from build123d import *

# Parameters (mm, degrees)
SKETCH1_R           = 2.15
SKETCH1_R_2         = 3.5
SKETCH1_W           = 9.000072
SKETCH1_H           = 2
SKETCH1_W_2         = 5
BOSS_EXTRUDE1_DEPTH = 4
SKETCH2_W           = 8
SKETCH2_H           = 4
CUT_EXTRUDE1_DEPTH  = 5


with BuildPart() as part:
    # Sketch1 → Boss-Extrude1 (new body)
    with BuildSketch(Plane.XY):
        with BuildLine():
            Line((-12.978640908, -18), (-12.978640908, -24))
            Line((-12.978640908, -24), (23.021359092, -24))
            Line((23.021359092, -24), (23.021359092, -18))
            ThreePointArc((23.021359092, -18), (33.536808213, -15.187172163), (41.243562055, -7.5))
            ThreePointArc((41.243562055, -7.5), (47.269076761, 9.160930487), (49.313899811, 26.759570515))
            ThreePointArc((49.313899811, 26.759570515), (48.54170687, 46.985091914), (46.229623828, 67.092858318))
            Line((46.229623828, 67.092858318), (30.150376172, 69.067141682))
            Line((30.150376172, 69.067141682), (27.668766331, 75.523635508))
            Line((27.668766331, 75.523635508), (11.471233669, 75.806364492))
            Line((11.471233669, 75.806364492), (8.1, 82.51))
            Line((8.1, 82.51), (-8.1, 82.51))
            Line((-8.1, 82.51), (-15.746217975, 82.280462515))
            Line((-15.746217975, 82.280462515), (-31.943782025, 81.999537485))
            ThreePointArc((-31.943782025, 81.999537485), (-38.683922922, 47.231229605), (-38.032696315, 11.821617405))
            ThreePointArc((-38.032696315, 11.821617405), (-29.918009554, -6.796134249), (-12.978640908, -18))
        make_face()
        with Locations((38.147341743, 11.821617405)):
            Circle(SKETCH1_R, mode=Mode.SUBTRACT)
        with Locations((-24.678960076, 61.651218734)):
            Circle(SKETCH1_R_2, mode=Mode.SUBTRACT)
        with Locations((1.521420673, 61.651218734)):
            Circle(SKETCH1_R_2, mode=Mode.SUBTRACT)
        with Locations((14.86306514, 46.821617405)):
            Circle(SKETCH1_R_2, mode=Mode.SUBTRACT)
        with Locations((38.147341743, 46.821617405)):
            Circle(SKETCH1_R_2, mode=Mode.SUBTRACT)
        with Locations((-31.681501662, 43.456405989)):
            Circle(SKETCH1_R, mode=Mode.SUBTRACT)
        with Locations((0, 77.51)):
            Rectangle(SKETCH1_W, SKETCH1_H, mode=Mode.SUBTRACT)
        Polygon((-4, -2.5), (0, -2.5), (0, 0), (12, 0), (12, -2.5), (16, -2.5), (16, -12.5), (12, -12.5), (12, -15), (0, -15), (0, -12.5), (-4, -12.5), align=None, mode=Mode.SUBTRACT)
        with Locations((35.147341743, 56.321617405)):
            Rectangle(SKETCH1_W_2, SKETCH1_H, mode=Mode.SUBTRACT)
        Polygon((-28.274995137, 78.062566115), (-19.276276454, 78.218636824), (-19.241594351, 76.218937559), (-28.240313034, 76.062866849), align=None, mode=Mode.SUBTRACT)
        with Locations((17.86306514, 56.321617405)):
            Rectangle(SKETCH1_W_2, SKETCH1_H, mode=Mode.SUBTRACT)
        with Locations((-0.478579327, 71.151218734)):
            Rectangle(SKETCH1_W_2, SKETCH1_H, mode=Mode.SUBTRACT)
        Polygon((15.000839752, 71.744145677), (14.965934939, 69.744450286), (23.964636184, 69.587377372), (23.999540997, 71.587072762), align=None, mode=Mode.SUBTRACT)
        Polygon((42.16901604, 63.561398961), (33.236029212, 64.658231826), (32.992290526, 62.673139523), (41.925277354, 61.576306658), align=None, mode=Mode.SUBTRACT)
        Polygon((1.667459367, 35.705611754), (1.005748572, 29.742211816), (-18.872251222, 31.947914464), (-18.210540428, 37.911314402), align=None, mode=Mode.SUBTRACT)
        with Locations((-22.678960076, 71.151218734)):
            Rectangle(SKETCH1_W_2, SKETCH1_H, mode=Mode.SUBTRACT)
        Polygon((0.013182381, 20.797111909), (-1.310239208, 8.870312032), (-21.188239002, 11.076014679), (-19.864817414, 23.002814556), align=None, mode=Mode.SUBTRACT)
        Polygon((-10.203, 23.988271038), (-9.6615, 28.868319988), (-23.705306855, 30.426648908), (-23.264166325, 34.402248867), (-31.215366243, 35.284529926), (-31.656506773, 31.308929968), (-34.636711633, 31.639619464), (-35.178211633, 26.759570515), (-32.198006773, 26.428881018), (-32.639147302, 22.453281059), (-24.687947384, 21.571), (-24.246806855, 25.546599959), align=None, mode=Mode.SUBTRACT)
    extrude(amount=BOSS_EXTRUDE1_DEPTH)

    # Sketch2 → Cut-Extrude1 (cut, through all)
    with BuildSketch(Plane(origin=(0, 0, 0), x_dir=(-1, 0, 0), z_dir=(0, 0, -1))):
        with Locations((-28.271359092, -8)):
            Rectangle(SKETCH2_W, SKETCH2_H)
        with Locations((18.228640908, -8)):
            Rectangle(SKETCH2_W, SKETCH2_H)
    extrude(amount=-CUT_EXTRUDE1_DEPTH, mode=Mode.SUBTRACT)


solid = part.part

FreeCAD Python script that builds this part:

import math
import FreeCAD as App
import Part
import Sketcher

V = App.Vector
Q = App.Units.Quantity

doc = App.newDocument("Part")
body = doc.addObject("PartDesign::Body", "Body")

sketch1 = body.newObject("Sketcher::SketchObject", "Sketch")
sketch1.AttachmentSupport = (doc.getObject("XY_Plane"), [""])
sketch1.MapMode = "FlatFace"
sketch1.addGeometry([
    Part.LineSegment(V(-13, -18, 0), V(-13, -24, 0)),
    Part.LineSegment(V(-13, -24, 0), V(23, -24, 0)),
    Part.LineSegment(V(23, -24, 0), V(23, -18, 0)),
    Part.ArcOfCircle(Part.Circle(V(23, 3.1, 0), V(0, 0, 1), 21.1), math.radians(-90), math.radians(-30)),
    Part.ArcOfCircle(Part.Circle(V(-27.4, 26.8, 0), V(0, 0, 1), 76.8), math.radians(-27), math.radians(0)),
    Part.ArcOfCircle(Part.Circle(V(-215.9, 26.8, 0), V(0, 0, 1), 265.3), math.radians(0), math.radians(8.75)),
    Part.LineSegment(V(46.2, 67.1, 0), V(30.2, 69.1, 0)),
    Part.LineSegment(V(30.2, 69.1, 0), V(27.7, 75.5, 0)),
    Part.LineSegment(V(27.7, 75.5, 0), V(11.5, 75.8, 0)),
    Part.LineSegment(V(11.5, 75.8, 0), V(8.1, 82.5, 0)),
    Part.LineSegment(V(8.1, 82.5, 0), V(-8.1, 82.5, 0)),
    Part.LineSegment(V(-8.1, 82.5, 0), V(-15.7, 82.3, 0)),
    Part.LineSegment(V(-15.7, 82.3, 0), V(-31.9, 82, 0)),
    Part.ArcOfCircle(Part.Circle(V(129.7, 32.6, 0), V(0, 0, 1), 169.1), math.radians(163), math.radians(187)),
    Part.ArcOfCircle(Part.Circle(V(-2.5, 16.2, 0), V(0, 0, 1), 35.8), math.radians(-173), math.radians(-107)),
    Part.LineSegment(V(-9.7, 28.9, 0), V(-10.2, 24, 0)),
    Part.LineSegment(V(-10.2, 24, 0), V(-24.2, 25.5, 0)),
    Part.LineSegment(V(-24.2, 25.5, 0), V(-24.7, 21.6, 0)),
    Part.LineSegment(V(-24.7, 21.6, 0), V(-32.6, 22.5, 0)),
    Part.LineSegment(V(-32.6, 22.5, 0), V(-32.2, 26.4, 0)),
    Part.LineSegment(V(-32.2, 26.4, 0), V(-35.2, 26.8, 0)),
    Part.LineSegment(V(-35.2, 26.8, 0), V(-34.6, 31.6, 0)),
    Part.LineSegment(V(-34.6, 31.6, 0), V(-31.7, 31.3, 0)),
    Part.LineSegment(V(-31.7, 31.3, 0), V(-31.2, 35.3, 0)),
    Part.LineSegment(V(-31.2, 35.3, 0), V(-23.3, 34.4, 0)),
    Part.LineSegment(V(-23.3, 34.4, 0), V(-23.7, 30.4, 0)),
    Part.LineSegment(V(-23.7, 30.4, 0), V(-9.7, 28.9, 0)),
    Part.LineSegment(V(-19.9, 23, 0), V(0, 20.8, 0)),
    Part.LineSegment(V(0, 20.8, 0), V(-1.3, 8.9, 0)),
    Part.LineSegment(V(-1.3, 8.9, 0), V(-21.2, 11.1, 0)),
    Part.LineSegment(V(-21.2, 11.1, 0), V(-19.9, 23, 0)),
    Part.LineSegment(V(-4, -12.5, 0), V(-4, -2.5, 0)),
    Part.LineSegment(V(-4, -2.5, 0), V(0, -2.5, 0)),
    Part.LineSegment(V(0, -2.5, 0), V(0, 0, 0)),
    Part.LineSegment(V(0, 0, 0), V(12, 0, 0)),
    Part.LineSegment(V(12, 0, 0), V(12, -2.5, 0)),
    Part.LineSegment(V(12, -2.5, 0), V(16, -2.5, 0)),
    Part.LineSegment(V(16, -2.5, 0), V(16, -12.5, 0)),
    Part.LineSegment(V(16, -12.5, 0), V(12, -12.5, 0)),
    Part.LineSegment(V(12, -12.5, 0), V(12, -15, 0)),
    Part.LineSegment(V(12, -15, 0), V(0, -15, 0)),
    Part.LineSegment(V(0, -15, 0), V(0, -12.5, 0)),
    Part.LineSegment(V(0, -12.5, 0), V(-4, -12.5, 0)),
    Part.Circle(V(38.1, 11.8, 0), V(0, 0, 1), 2.1),
    Part.Circle(V(-31.7, 43.5, 0), V(0, 0, 1), 2.1),
    Part.LineSegment(V(-18.2, 37.9, 0), V(1.7, 35.7, 0)),
    Part.LineSegment(V(1.7, 35.7, 0), V(1, 29.7, 0)),
    Part.LineSegment(V(1, 29.7, 0), V(-18.9, 31.9, 0)),
    Part.LineSegment(V(-18.9, 31.9, 0), V(-18.2, 37.9, 0)),
    Part.Circle(V(-24.7, 61.7, 0), V(0, 0, 1), 3.5),
    Part.LineSegment(V(-20.2, 70.2, 0), V(-25.2, 70.2, 0)),
    Part.LineSegment(V(-25.2, 70.2, 0), V(-25.2, 72.2, 0)),
    Part.LineSegment(V(-25.2, 72.2, 0), V(-20.2, 72.2, 0)),
    Part.LineSegment(V(-20.2, 72.2, 0), V(-20.2, 70.2, 0)),
    Part.LineSegment(V(-28.2, 76.1, 0), V(-28.3, 78.1, 0)),
    Part.LineSegment(V(-28.3, 78.1, 0), V(-19.3, 78.2, 0)),
    Part.LineSegment(V(-19.3, 78.2, 0), V(-19.2, 76.2, 0)),
    Part.LineSegment(V(-19.2, 76.2, 0), V(-28.2, 76.1, 0)),
    Part.Circle(V(1.5, 61.7, 0), V(0, 0, 1), 3.5),
    Part.LineSegment(V(2, 70.2, 0), V(-3, 70.2, 0)),
    Part.LineSegment(V(-3, 70.2, 0), V(-3, 72.2, 0)),
    Part.LineSegment(V(-3, 72.2, 0), V(2, 72.2, 0)),
    Part.LineSegment(V(2, 72.2, 0), V(2, 70.2, 0)),
    Part.LineSegment(V(4.5, 76.5, 0), V(-4.5, 76.5, 0)),
    Part.LineSegment(V(-4.5, 76.5, 0), V(-4.5, 78.5, 0)),
    Part.LineSegment(V(-4.5, 78.5, 0), V(4.5, 78.5, 0)),
    Part.LineSegment(V(4.5, 78.5, 0), V(4.5, 76.5, 0)),
    Part.Circle(V(14.9, 46.8, 0), V(0, 0, 1), 3.5),
    Part.Circle(V(38.1, 46.8, 0), V(0, 0, 1), 3.5),
    Part.LineSegment(V(20.4, 55.3, 0), V(15.4, 55.3, 0)),
    Part.LineSegment(V(15.4, 55.3, 0), V(15.4, 57.3, 0)),
    Part.LineSegment(V(15.4, 57.3, 0), V(20.4, 57.3, 0)),
    Part.LineSegment(V(20.4, 57.3, 0), V(20.4, 55.3, 0)),
    Part.LineSegment(V(15, 69.7, 0), V(15, 71.7, 0)),
    Part.LineSegment(V(15, 71.7, 0), V(24, 71.6, 0)),
    Part.LineSegment(V(24, 71.6, 0), V(24, 69.6, 0)),
    Part.LineSegment(V(24, 69.6, 0), V(15, 69.7, 0)),
    Part.LineSegment(V(37.6, 55.3, 0), V(32.6, 55.3, 0)),
    Part.LineSegment(V(32.6, 55.3, 0), V(32.6, 57.3, 0)),
    Part.LineSegment(V(32.6, 57.3, 0), V(37.6, 57.3, 0)),
    Part.LineSegment(V(37.6, 57.3, 0), V(37.6, 55.3, 0)),
    Part.LineSegment(V(33.2, 64.7, 0), V(42.2, 63.6, 0)),
    Part.LineSegment(V(42.2, 63.6, 0), V(41.9, 61.6, 0)),
    Part.LineSegment(V(41.9, 61.6, 0), V(33, 62.7, 0)),
    Part.LineSegment(V(33, 62.7, 0), V(33.2, 64.7, 0)),
], False)
sketch1.addConstraint([
    Sketcher.Constraint("Coincident", 0, 2, 1, 1),
    Sketcher.Constraint("Coincident", 1, 2, 2, 1),
    Sketcher.Constraint("Coincident", 2, 2, 3, 1),
    Sketcher.Constraint("Coincident", 3, 2, 4, 1),
    Sketcher.Constraint("Tangent", 4, 2, 5, 1),
    Sketcher.Constraint("Coincident", 5, 2, 6, 1),
    Sketcher.Constraint("Coincident", 6, 2, 7, 1),
    Sketcher.Constraint("Coincident", 7, 2, 8, 1),
    Sketcher.Constraint("Coincident", 8, 2, 9, 1),
    Sketcher.Constraint("Coincident", 9, 2, 10, 1),
    Sketcher.Constraint("Coincident", 10, 2, 11, 1),
    Sketcher.Constraint("Coincident", 11, 2, 12, 1),
    Sketcher.Constraint("Coincident", 12, 2, 13, 1),
    Sketcher.Constraint("Tangent", 13, 2, 14, 1),
    Sketcher.Constraint("Coincident", 14, 2, 0, 1),
    Sketcher.Constraint("Coincident", 15, 2, 16, 1),
    Sketcher.Constraint("Coincident", 16, 2, 17, 1),
    Sketcher.Constraint("Coincident", 17, 2, 18, 1),
    Sketcher.Constraint("Coincident", 18, 2, 19, 1),
    Sketcher.Constraint("Coincident", 19, 2, 20, 1),
    Sketcher.Constraint("Coincident", 20, 2, 21, 1),
    Sketcher.Constraint("Coincident", 21, 2, 22, 1),
    Sketcher.Constraint("Coincident", 22, 2, 23, 1),
    Sketcher.Constraint("Coincident", 23, 2, 24, 1),
    Sketcher.Constraint("Coincident", 24, 2, 25, 1),
    Sketcher.Constraint("Coincident", 25, 2, 26, 1),
    Sketcher.Constraint("Coincident", 26, 2, 15, 1),
    Sketcher.Constraint("Coincident", 27, 2, 28, 1),
    Sketcher.Constraint("Coincident", 28, 2, 29, 1),
    Sketcher.Constraint("Coincident", 29, 2, 30, 1),
    Sketcher.Constraint("Coincident", 30, 2, 27, 1),
    Sketcher.Constraint("Coincident", 31, 2, 32, 1),
    Sketcher.Constraint("Coincident", 32, 2, 33, 1),
    Sketcher.Constraint("Coincident", 33, 2, 34, 1),
    Sketcher.Constraint("Coincident", 34, 2, 35, 1),
    Sketcher.Constraint("Coincident", 35, 2, 36, 1),
    Sketcher.Constraint("Coincident", 36, 2, 37, 1),
    Sketcher.Constraint("Coincident", 37, 2, 38, 1),
    Sketcher.Constraint("Coincident", 38, 2, 39, 1),
    Sketcher.Constraint("Coincident", 39, 2, 40, 1),
    Sketcher.Constraint("Coincident", 40, 2, 41, 1),
    Sketcher.Constraint("Coincident", 41, 2, 42, 1),
    Sketcher.Constraint("Coincident", 42, 2, 31, 1),
    Sketcher.Constraint("Coincident", 45, 2, 46, 1),
    Sketcher.Constraint("Coincident", 46, 2, 47, 1),
    Sketcher.Constraint("Coincident", 47, 2, 48, 1),
    Sketcher.Constraint("Coincident", 48, 2, 45, 1),
    Sketcher.Constraint("Coincident", 50, 2, 51, 1),
    Sketcher.Constraint("Coincident", 51, 2, 52, 1),
    Sketcher.Constraint("Coincident", 52, 2, 53, 1),
    Sketcher.Constraint("Coincident", 53, 2, 50, 1),
    Sketcher.Constraint("Coincident", 54, 2, 55, 1),
    Sketcher.Constraint("Coincident", 55, 2, 56, 1),
    Sketcher.Constraint("Coincident", 56, 2, 57, 1),
    Sketcher.Constraint("Coincident", 57, 2, 54, 1),
    Sketcher.Constraint("Coincident", 59, 2, 60, 1),
    Sketcher.Constraint("Coincident", 60, 2, 61, 1),
    Sketcher.Constraint("Coincident", 61, 2, 62, 1),
    Sketcher.Constraint("Coincident", 62, 2, 59, 1),
    Sketcher.Constraint("Coincident", 63, 2, 64, 1),
    Sketcher.Constraint("Coincident", 64, 2, 65, 1),
    Sketcher.Constraint("Coincident", 65, 2, 66, 1),
    Sketcher.Constraint("Coincident", 66, 2, 63, 1),
    Sketcher.Constraint("Coincident", 69, 2, 70, 1),
    Sketcher.Constraint("Coincident", 70, 2, 71, 1),
    Sketcher.Constraint("Coincident", 71, 2, 72, 1),
    Sketcher.Constraint("Coincident", 72, 2, 69, 1),
    Sketcher.Constraint("Coincident", 73, 2, 74, 1),
    Sketcher.Constraint("Coincident", 74, 2, 75, 1),
    Sketcher.Constraint("Coincident", 75, 2, 76, 1),
    Sketcher.Constraint("Coincident", 76, 2, 73, 1),
    Sketcher.Constraint("Coincident", 77, 2, 78, 1),
    Sketcher.Constraint("Coincident", 78, 2, 79, 1),
    Sketcher.Constraint("Coincident", 79, 2, 80, 1),
    Sketcher.Constraint("Coincident", 80, 2, 77, 1),
    Sketcher.Constraint("Coincident", 81, 2, 82, 1),
    Sketcher.Constraint("Coincident", 82, 2, 83, 1),
    Sketcher.Constraint("Coincident", 83, 2, 84, 1),
    Sketcher.Constraint("Coincident", 84, 2, 81, 1),
    Sketcher.Constraint("Vertical", 0),
    Sketcher.Constraint("Horizontal", 1),
    Sketcher.Constraint("Vertical", 2),
    Sketcher.Constraint("Horizontal", 10),
    Sketcher.Constraint("Vertical", 31),
    Sketcher.Constraint("Horizontal", 32),
    Sketcher.Constraint("Vertical", 33),
    Sketcher.Constraint("Horizontal", 34),
    Sketcher.Constraint("Vertical", 35),
    Sketcher.Constraint("Horizontal", 36),
    Sketcher.Constraint("Vertical", 37),
    Sketcher.Constraint("Horizontal", 38),
    Sketcher.Constraint("Vertical", 39),
    Sketcher.Constraint("Horizontal", 40),
    Sketcher.Constraint("Vertical", 41),
    Sketcher.Constraint("Horizontal", 42),
    Sketcher.Constraint("Horizontal", 50),
    Sketcher.Constraint("Vertical", 51),
    Sketcher.Constraint("Horizontal", 52),
    Sketcher.Constraint("Vertical", 53),
    Sketcher.Constraint("Horizontal", 59),
    Sketcher.Constraint("Vertical", 60),
    Sketcher.Constraint("Horizontal", 61),
    Sketcher.Constraint("Vertical", 62),
    Sketcher.Constraint("Horizontal", 63),
    Sketcher.Constraint("Vertical", 64),
    Sketcher.Constraint("Horizontal", 65),
    Sketcher.Constraint("Vertical", 66),
    Sketcher.Constraint("Horizontal", 69),
    Sketcher.Constraint("Vertical", 70),
    Sketcher.Constraint("Horizontal", 71),
    Sketcher.Constraint("Vertical", 72),
    Sketcher.Constraint("Horizontal", 77),
    Sketcher.Constraint("Vertical", 78),
    Sketcher.Constraint("Horizontal", 79),
    Sketcher.Constraint("Vertical", 80),
    Sketcher.Constraint("Coincident", 33, 2, -1, 1),
    Sketcher.Constraint("Equal", 43, 44),
    Sketcher.Constraint("Equal", 49, 58),
    Sketcher.Constraint("Equal", 58, 67),
    Sketcher.Constraint("Equal", 67, 68),
    Sketcher.Constraint("PointOnObject", 40, 2, -2),
    Sketcher.Constraint("Perpendicular", 15, 16),
    Sketcher.Constraint("Perpendicular", 16, 17),
    Sketcher.Constraint("Perpendicular", 17, 18),
    Sketcher.Constraint("Perpendicular", 18, 19),
    Sketcher.Constraint("Perpendicular", 19, 20),
    Sketcher.Constraint("Perpendicular", 20, 21),
    Sketcher.Constraint("Perpendicular", 21, 22),
    Sketcher.Constraint("Perpendicular", 22, 23),
    Sketcher.Constraint("Perpendicular", 23, 24),
    Sketcher.Constraint("Perpendicular", 24, 25),
    Sketcher.Constraint("Perpendicular", 25, 26),
    Sketcher.Constraint("Parallel", 26, 27),
    Sketcher.Constraint("Perpendicular", 27, 28),
    Sketcher.Constraint("Perpendicular", 28, 29),
    Sketcher.Constraint("Perpendicular", 29, 30),
    Sketcher.Constraint("Perpendicular", 30, 45),
    Sketcher.Constraint("Perpendicular", 45, 46),
    Sketcher.Constraint("Perpendicular", 46, 47),
    Sketcher.Constraint("Perpendicular", 47, 48),
    Sketcher.Constraint("Perpendicular", 12, 54),
    Sketcher.Constraint("Perpendicular", 54, 55),
    Sketcher.Constraint("Perpendicular", 55, 56),
    Sketcher.Constraint("Perpendicular", 56, 57),
    Sketcher.Constraint("Perpendicular", 8, 73),
    Sketcher.Constraint("Perpendicular", 73, 74),
    Sketcher.Constraint("Perpendicular", 74, 75),
    Sketcher.Constraint("Perpendicular", 75, 76),
    Sketcher.Constraint("Parallel", 6, 81),
    Sketcher.Constraint("Perpendicular", 81, 82),
    Sketcher.Constraint("Perpendicular", 82, 83),
    Sketcher.Constraint("Perpendicular", 83, 84),
    Sketcher.Constraint("Horizontal", 4, 3, 5, 3),
    Sketcher.Constraint("Horizontal", 49, 3, 58, 3),
    Sketcher.Constraint("Horizontal", 67, 3, 68, 3),
    Sketcher.Constraint("Horizontal", 43, 3, 13, 2),
    Sketcher.Constraint("Horizontal", 2, 2, 14, 2),
    Sketcher.Constraint("Horizontal", 4, 2, 20, 2),
    Sketcher.Constraint("Horizontal", 32, 2, 35, 2),
    Sketcher.Constraint("Horizontal", 38, 2, 41, 2),
    Sketcher.Constraint("Horizontal", 53, 2, 59, 2),
    Sketcher.Constraint("Horizontal", 52, 2, 60, 2),
    Sketcher.Constraint("Horizontal", 72, 2, 77, 2),
    Sketcher.Constraint("Horizontal", 71, 2, 78, 2),
    Sketcher.Constraint("Vertical", 43, 3, 68, 3),
    Sketcher.Constraint("Vertical", 3, 3, 1, 2),
    Sketcher.Constraint("Vertical", 35, 2, 38, 2),
    Sketcher.Constraint("Equal", 32, 36),
    Sketcher.Constraint("Equal", 52, 59),
    Sketcher.Constraint("Equal", 61, 69),
    Sketcher.Constraint("Equal", 71, 77),
    Sketcher.Constraint("Equal", 35, 39),
    Sketcher.Constraint("Equal", 62, 64),
    Sketcher.Constraint("Equal", 66, 70),
    Sketcher.Constraint("Equal", 6, 8),
    Sketcher.Constraint("Equal", 8, 12),
    Sketcher.Constraint("Equal", 17, 19),
    Sketcher.Constraint("Equal", 15, 21),
    Sketcher.Constraint("Equal", 20, 22),
    Sketcher.Constraint("Equal", 19, 23),
    Sketcher.Constraint("Equal", 18, 24),
    Sketcher.Constraint("Equal", 29, 45),
    Sketcher.Constraint("Equal", 56, 73),
    Sketcher.Constraint("Equal", 57, 74),
    Sketcher.Constraint("Equal", 76, 81),
    Sketcher.Constraint("Equal", 75, 82),
    Sketcher.Constraint("Diameter", 49, Q("7 mm")),
    Sketcher.Constraint("Diameter", 43, Q("4.3 mm")),
    Sketcher.Constraint("DistanceX", 1, 1, 1, 2, Q("36 mm")),
    Sketcher.Constraint("DistanceX", 32, 1, 32, 2, Q("4 mm")),
    Sketcher.Constraint("DistanceX", 34, 1, 34, 2, Q("12 mm")),
    Sketcher.Constraint("DistanceX", 50, 2, 50, 1, Q("5 mm")),
    Sketcher.Constraint("DistanceY", 0, 2, 0, 1, Q("6 mm")),
    Sketcher.Constraint("DistanceY", 31, 1, 31, 2, Q("10 mm")),
    Sketcher.Constraint("DistanceY", 51, 1, 51, 2, Q("2 mm")),
    Sketcher.Constraint("Angle", 6, Q("173 deg")),
    Sketcher.Constraint("Angle", 8, Q("179 deg")),
    Sketcher.Constraint("Distance", 17, Q("4 mm")),
    Sketcher.Constraint("Distance", 18, Q("8 mm")),
    Sketcher.Constraint("Distance", 27, Q("20 mm")),
    Sketcher.Constraint("Distance", 28, Q("12 mm")),
    Sketcher.Constraint("Distance", 46, Q("6 mm")),
    Sketcher.Constraint("Distance", 54, Q("2 mm")),
    Sketcher.Constraint("DistanceX", 10, 2, 10, 1, Q("16.2 mm")),
    Sketcher.Constraint("DistanceY", 33, 1, 33, 2, Q("2.5 mm")),
    Sketcher.Constraint("DistanceY", 0, 2, -1, 1, Q("24 mm")),
    Sketcher.Constraint("Distance", 6, Q("16.2 mm")),
    Sketcher.Constraint("DistanceY", 3, 2, -1, 1, Q("7.5 mm")),
    Sketcher.Constraint("DistanceX", -1, 1, 9, 2, Q("8.1 mm")),
    Sketcher.Constraint("Radius", 4, Q("76.753202 mm")),
    Sketcher.Constraint("Distance", 15, Q("4.91 mm")),
    Sketcher.Constraint("Distance", 16, Q("14.13 mm")),
    Sketcher.Constraint("DistanceY", -1, 1, 9, 2, Q("82.51 mm")),
    Sketcher.Constraint("DistanceY", -1, 1, 63, 2, Q("76.51 mm")),
    Sketcher.Constraint("Radius", 3, Q("21.061842 mm")),
    Sketcher.Constraint("Radius", 5, Q("265.262718 mm")),
    Sketcher.Constraint("Radius", 13, Q("169.05805 mm")),
    Sketcher.Constraint("Radius", 14, Q("35.787019 mm")),
    Sketcher.Constraint("DistanceX", 15, 2, -1, 1, Q("10.203 mm")),
    Sketcher.Constraint("DistanceY", -1, 1, 17, 2, Q("21.571 mm")),
    Sketcher.Constraint("DistanceX", 4, 3, -1, 1, Q("27.439302 mm")),
    Sketcher.Constraint("DistanceX", 44, 3, -1, 1, Q("31.681502 mm")),
    Sketcher.Constraint("DistanceY", -1, 1, 16, 2, Q("25.5466 mm")),
    Sketcher.Constraint("DistanceY", -1, 1, 81, 2, Q("63.561399 mm")),
    Sketcher.Constraint("Distance", 55, Q("9.000072 mm")),
    Sketcher.Constraint("DistanceX", 63, 2, 63, 1, Q("9.000072 mm")),
    Sketcher.Constraint("DistanceX", -1, 1, 3, 3, Q("23.021359 mm")),
    Sketcher.Constraint("DistanceX", 14, 3, -1, 1, Q("2.517479 mm")),
    Sketcher.Constraint("DistanceX", -1, 1, 43, 3, Q("38.147342 mm")),
    Sketcher.Constraint("DistanceX", 49, 3, -1, 1, Q("24.67896 mm")),
    Sketcher.Constraint("DistanceY", -1, 1, 49, 3, Q("61.651219 mm")),
    Sketcher.Constraint("DistanceX", -1, 1, 58, 3, Q("1.521421 mm")),
    Sketcher.Constraint("DistanceY", -1, 1, 5, 2, Q("67.092858 mm")),
    Sketcher.Constraint("DistanceY", -1, 1, 27, 2, Q("20.797112 mm")),
    Sketcher.Constraint("DistanceX", 28, 2, -1, 1, Q("1.310239 mm")),
    Sketcher.Constraint("DistanceX", -1, 1, 45, 2, Q("1.667459 mm")),
    Sketcher.Constraint("DistanceY", -1, 1, 45, 2, Q("35.705612 mm")),
    Sketcher.Constraint("DistanceX", 50, 2, -1, 1, Q("25.17896 mm")),
    Sketcher.Constraint("DistanceY", -1, 1, 50, 2, Q("70.151219 mm")),
    Sketcher.Constraint("DistanceX", 59, 2, -1, 1, Q("2.978579 mm")),
    Sketcher.Constraint("DistanceX", -1, 1, 73, 2, Q("15.00084 mm")),
    Sketcher.Constraint("DistanceY", -1, 1, 76, 2, Q("69.74445 mm")),
    Sketcher.Constraint("DistanceX", -1, 1, 77, 2, Q("32.647342 mm")),
    Sketcher.Constraint("DistanceX", -1, 1, 83, 2, Q("32.992291 mm")),
    Sketcher.Constraint("Distance", 7, Q("6.916986 mm")),
    Sketcher.Constraint("Distance", 9, Q("7.503596 mm")),
    Sketcher.Constraint("Distance", 11, Q("7.649663 mm")),
    Sketcher.Constraint("DistanceX", -1, 1, 13, 3, Q("129.741364 mm")),
    Sketcher.Constraint("DistanceY", -1, 1, 44, 3, Q("43.456406 mm")),
    Sketcher.Constraint("DistanceX", -1, 1, 67, 3, Q("14.863065 mm")),
    Sketcher.Constraint("DistanceY", -1, 1, 67, 3, Q("46.821617 mm")),
    Sketcher.Constraint("DistanceX", 11, 2, -1, 1, Q("15.746218 mm")),
    Sketcher.Constraint("DistanceX", 54, 2, -1, 1, Q("28.274995 mm")),
    Sketcher.Constraint("DistanceY", -1, 1, 54, 2, Q("78.062566 mm")),
    Sketcher.Constraint("DistanceX", 63, 2, -1, 1, Q("4.500036 mm")),
    Sketcher.Constraint("DistanceX", -1, 1, 69, 2, Q("15.363065 mm")),
    Sketcher.Constraint("DistanceY", -1, 1, 69, 2, Q("55.321617 mm")),
])
pad1 = body.newObject("PartDesign::Pad", "Pad")
pad1.Profile = sketch1
pad1.Length = 4

sketch2 = body.newObject("Sketcher::SketchObject", "Sketch001")
sketch2.AttachmentSupport = (doc.getObject("XY_Plane"), [""])
sketch2.MapMode = "FlatFace"
sketch2.addGeometry([
    Part.LineSegment(V(32.3, -6, 0), V(32.3, -10, 0)),
    Part.LineSegment(V(32.3, -10, 0), V(24.3, -10, 0)),
    Part.LineSegment(V(24.3, -10, 0), V(24.3, -6, 0)),
    Part.LineSegment(V(24.3, -6, 0), V(32.3, -6, 0)),
    Part.LineSegment(V(-14.2, -6, 0), V(-14.2, -10, 0)),
    Part.LineSegment(V(-14.2, -10, 0), V(-22.2, -10, 0)),
    Part.LineSegment(V(-22.2, -10, 0), V(-22.2, -6, 0)),
    Part.LineSegment(V(-22.2, -6, 0), V(-14.2, -6, 0)),
], False)
sketch2.addConstraint([
    Sketcher.Constraint("Coincident", 0, 2, 1, 1),
    Sketcher.Constraint("Coincident", 1, 2, 2, 1),
    Sketcher.Constraint("Coincident", 2, 2, 3, 1),
    Sketcher.Constraint("Coincident", 3, 2, 0, 1),
    Sketcher.Constraint("Coincident", 4, 2, 5, 1),
    Sketcher.Constraint("Coincident", 5, 2, 6, 1),
    Sketcher.Constraint("Coincident", 6, 2, 7, 1),
    Sketcher.Constraint("Coincident", 7, 2, 4, 1),
    Sketcher.Constraint("Vertical", 0),
    Sketcher.Constraint("Horizontal", 1),
    Sketcher.Constraint("Vertical", 2),
    Sketcher.Constraint("Horizontal", 3),
    Sketcher.Constraint("Vertical", 4),
    Sketcher.Constraint("Horizontal", 5),
    Sketcher.Constraint("Vertical", 6),
    Sketcher.Constraint("Horizontal", 7),
    Sketcher.Constraint("Horizontal", 1, 2, 4, 2),
    Sketcher.Constraint("Horizontal", 3, 2, 6, 2),
    Sketcher.Constraint("Equal", 3, 5),
    Sketcher.Constraint("DistanceX", 1, 2, 1, 1, Q("8 mm")),
    Sketcher.Constraint("DistanceY", 0, 2, 0, 1, Q("4 mm")),
    Sketcher.Constraint("DistanceY", 0, 2, -1, 1, Q("10 mm")),
    Sketcher.Constraint("DistanceX", 4, 2, 1, 2, Q("38.5 mm")),
    Sketcher.Constraint("DistanceX", -1, 1, 0, 2, Q("32.271359 mm")),
])
pocket1 = body.newObject("PartDesign::Pocket", "Pocket")
pocket1.Profile = sketch2
pocket1.Type = "ThroughAll"
pocket1.Reversed = True

doc.recompute()
